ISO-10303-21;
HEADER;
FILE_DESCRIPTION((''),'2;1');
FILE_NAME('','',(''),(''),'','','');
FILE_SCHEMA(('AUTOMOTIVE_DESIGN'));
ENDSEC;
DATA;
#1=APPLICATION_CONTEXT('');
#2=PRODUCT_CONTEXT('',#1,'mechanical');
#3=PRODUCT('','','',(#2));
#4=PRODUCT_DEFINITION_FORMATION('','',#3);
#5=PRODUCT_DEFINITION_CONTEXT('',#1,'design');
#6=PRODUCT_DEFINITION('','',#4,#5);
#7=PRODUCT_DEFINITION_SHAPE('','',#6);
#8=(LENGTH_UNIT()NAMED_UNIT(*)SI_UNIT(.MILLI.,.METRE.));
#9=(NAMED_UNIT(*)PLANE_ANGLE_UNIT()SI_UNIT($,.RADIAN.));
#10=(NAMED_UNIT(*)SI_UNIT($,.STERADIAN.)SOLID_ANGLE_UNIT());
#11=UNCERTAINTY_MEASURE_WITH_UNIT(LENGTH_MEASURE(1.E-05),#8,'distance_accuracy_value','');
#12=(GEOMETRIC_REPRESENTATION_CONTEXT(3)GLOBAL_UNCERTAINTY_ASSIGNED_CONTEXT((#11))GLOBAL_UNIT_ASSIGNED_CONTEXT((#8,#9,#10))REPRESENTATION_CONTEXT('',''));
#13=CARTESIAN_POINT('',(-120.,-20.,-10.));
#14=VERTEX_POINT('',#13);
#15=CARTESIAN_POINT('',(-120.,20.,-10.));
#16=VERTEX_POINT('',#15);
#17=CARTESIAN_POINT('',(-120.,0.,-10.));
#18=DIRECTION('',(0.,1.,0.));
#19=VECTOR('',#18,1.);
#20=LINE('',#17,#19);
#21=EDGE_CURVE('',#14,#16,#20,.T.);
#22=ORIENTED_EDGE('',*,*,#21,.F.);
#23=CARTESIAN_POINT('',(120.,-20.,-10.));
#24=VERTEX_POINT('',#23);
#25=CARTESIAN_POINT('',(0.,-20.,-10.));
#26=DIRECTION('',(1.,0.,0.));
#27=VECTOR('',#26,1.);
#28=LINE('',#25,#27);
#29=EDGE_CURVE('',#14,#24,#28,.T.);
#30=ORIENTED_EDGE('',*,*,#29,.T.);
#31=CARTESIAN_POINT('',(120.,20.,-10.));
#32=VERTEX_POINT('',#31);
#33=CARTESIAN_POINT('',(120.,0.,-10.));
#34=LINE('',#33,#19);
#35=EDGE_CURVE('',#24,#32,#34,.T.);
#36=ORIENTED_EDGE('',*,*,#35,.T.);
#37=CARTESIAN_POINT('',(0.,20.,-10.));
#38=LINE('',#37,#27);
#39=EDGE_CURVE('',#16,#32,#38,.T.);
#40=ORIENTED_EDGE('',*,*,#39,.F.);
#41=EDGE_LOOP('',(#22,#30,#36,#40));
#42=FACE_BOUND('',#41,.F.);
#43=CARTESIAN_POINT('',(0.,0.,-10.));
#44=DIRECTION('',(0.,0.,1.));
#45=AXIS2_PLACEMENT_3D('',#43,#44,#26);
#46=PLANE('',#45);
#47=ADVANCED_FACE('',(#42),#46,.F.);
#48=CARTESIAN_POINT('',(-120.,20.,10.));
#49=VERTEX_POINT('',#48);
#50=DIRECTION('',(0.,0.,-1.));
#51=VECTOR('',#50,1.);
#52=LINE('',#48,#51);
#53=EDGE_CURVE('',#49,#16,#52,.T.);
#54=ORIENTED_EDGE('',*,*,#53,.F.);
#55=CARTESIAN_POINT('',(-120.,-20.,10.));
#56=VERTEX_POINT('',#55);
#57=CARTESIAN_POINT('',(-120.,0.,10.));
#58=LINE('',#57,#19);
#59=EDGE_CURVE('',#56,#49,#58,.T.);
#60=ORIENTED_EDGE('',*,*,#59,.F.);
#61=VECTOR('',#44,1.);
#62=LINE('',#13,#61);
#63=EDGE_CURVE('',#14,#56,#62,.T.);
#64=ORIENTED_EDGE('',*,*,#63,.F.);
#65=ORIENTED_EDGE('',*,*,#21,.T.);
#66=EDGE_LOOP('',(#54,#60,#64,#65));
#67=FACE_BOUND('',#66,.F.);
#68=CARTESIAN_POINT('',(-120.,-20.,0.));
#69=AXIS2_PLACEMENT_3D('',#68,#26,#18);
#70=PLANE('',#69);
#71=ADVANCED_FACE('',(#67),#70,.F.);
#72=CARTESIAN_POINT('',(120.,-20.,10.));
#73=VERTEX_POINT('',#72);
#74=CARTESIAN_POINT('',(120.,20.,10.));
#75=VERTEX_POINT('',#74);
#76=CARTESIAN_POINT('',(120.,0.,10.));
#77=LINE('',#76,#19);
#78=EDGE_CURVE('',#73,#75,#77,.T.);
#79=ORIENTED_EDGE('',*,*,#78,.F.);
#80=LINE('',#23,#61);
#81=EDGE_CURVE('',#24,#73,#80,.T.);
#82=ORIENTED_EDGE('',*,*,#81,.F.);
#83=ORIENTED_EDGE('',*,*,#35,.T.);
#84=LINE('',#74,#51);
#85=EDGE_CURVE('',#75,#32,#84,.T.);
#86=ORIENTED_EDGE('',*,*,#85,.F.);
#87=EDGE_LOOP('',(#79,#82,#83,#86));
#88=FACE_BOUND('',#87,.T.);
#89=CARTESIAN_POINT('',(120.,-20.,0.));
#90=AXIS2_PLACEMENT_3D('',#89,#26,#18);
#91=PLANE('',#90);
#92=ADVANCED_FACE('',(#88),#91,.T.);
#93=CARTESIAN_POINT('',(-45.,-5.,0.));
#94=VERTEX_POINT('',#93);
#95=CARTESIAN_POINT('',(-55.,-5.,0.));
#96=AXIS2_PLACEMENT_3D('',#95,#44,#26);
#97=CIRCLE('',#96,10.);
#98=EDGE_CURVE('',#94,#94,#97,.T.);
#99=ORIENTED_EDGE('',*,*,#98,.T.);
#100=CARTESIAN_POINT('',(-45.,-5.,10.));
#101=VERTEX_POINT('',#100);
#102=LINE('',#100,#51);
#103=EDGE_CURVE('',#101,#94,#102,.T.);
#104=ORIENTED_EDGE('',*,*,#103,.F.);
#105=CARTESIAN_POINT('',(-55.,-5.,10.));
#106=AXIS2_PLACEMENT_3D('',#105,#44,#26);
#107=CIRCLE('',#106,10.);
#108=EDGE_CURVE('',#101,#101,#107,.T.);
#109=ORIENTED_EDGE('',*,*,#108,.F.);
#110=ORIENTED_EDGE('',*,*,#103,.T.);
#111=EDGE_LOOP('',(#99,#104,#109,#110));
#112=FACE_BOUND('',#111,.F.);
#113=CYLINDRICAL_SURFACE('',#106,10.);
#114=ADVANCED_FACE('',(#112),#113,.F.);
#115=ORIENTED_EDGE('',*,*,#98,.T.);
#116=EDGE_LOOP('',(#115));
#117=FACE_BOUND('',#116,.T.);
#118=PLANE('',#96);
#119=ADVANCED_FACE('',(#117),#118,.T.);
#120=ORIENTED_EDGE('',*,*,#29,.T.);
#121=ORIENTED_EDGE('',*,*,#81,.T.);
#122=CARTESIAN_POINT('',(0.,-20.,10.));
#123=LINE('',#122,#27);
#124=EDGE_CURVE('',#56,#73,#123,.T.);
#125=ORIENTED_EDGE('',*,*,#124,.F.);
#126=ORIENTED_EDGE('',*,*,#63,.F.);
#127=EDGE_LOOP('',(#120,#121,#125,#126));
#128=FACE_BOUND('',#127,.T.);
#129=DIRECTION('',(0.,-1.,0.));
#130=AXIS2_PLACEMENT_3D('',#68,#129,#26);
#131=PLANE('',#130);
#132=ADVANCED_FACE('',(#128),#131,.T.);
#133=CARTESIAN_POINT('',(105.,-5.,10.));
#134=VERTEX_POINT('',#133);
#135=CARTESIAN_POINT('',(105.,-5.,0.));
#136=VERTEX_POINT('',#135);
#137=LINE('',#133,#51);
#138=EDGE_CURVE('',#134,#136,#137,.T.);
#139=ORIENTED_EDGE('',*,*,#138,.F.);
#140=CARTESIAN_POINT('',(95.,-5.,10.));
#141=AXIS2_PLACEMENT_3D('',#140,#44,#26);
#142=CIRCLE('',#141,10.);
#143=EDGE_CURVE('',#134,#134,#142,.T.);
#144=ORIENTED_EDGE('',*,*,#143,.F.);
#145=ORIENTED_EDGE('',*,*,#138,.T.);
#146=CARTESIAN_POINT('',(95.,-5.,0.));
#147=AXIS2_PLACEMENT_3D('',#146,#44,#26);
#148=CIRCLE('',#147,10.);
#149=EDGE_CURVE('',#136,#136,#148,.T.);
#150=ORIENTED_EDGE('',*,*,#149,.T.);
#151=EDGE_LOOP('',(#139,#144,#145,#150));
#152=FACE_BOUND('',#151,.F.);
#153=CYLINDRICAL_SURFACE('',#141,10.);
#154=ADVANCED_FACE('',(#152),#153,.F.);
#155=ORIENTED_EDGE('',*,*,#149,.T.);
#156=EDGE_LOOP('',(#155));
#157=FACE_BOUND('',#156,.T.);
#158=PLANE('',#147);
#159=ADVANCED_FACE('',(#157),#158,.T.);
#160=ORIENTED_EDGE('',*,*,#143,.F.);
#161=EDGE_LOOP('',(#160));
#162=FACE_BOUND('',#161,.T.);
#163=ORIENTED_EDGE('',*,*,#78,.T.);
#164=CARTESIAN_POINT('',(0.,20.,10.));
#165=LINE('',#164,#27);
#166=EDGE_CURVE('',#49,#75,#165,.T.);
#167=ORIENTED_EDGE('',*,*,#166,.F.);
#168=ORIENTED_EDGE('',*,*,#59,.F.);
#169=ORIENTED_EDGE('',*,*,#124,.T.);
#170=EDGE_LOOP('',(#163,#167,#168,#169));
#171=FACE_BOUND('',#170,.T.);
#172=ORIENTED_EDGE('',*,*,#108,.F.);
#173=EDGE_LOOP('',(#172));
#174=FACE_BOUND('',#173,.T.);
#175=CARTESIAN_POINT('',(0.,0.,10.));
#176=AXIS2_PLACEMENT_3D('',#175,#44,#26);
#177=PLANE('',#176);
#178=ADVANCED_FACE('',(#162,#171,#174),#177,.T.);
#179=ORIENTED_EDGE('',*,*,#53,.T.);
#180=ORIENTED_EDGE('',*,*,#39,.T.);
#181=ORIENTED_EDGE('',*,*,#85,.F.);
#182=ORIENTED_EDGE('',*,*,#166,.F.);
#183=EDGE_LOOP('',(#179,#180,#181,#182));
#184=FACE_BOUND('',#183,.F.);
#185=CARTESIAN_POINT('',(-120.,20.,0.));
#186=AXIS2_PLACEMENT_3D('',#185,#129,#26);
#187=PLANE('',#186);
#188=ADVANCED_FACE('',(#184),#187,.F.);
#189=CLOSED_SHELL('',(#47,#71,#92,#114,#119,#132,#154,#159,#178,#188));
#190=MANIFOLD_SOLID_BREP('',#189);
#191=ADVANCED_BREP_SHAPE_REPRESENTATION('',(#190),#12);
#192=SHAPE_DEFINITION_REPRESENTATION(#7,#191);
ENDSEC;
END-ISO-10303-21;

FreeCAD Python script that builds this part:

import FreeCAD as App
import Part
import Sketcher

V = App.Vector
Q = App.Units.Quantity

doc = App.newDocument("Part")
body = doc.addObject("PartDesign::Body", "Body")

sketch1 = doc.addObject("Sketcher::SketchObject", "Sketch")
body.addObject(sketch1)
sketch1.AttachmentSupport = (doc.XY_Plane, [""])
sketch1.MapMode = "FlatFace"
sketch1.addGeometry(Part.LineSegment(V(-120, 20, 0), V(-120, -20, 0)), False)
sketch1.addGeometry(Part.LineSegment(V(-120, -20, 0), V(120, -20, 0)), False)
sketch1.addGeometry(Part.LineSegment(V(120, -20, 0), V(120, 20, 0)), False)
sketch1.addGeometry(Part.LineSegment(V(120, 20, 0), V(-120, 20, 0)), False)
sketch1.addConstraint(Sketcher.Constraint("Coincident", 0, 2, 1, 1))
sketch1.addConstraint(Sketcher.Constraint("Coincident", 1, 2, 2, 1))
sketch1.addConstraint(Sketcher.Constraint("Coincident", 2, 2, 3, 1))
sketch1.addConstraint(Sketcher.Constraint("Coincident", 3, 2, 0, 1))
sketch1.addConstraint(Sketcher.Constraint("Vertical", 0))
sketch1.addConstraint(Sketcher.Constraint("Horizontal", 1))
sketch1.addConstraint(Sketcher.Constraint("Vertical", 2))
sketch1.addConstraint(Sketcher.Constraint("Horizontal", 3))
sketch1.addConstraint(Sketcher.Constraint("Symmetric", 0, 2, 2, 2, -1, 1))
sketch1.addConstraint(Sketcher.Constraint("DistanceX", 1, 1, 1, 2, Q("240 mm")))
sketch1.addConstraint(Sketcher.Constraint("DistanceY", 0, 2, 0, 1, Q("40 mm")))
pad1 = doc.addObject("PartDesign::Pad", "Pad")
body.addObject(pad1)
pad1.Profile = sketch1
pad1.Length = 20
pad1.Midplane = True

sketch2 = doc.addObject("Sketcher::SketchObject", "Sketch001")
body.addObject(sketch2)
sketch2.AttachmentSupport = (doc.XY_Plane, [""])
sketch2.MapMode = "FlatFace"
sketch2.AttachmentOffset = App.Placement(V(0, 0, 10), App.Rotation())
sketch2.addGeometry(Part.Circle(V(-55, -5, 0), V(0, 0, 1), 10), False)
sketch2.addGeometry(Part.Circle(V(95, -5, 0), V(0, 0, 1), 10), False)
sketch2.addConstraint(Sketcher.Constraint("Equal", 0, 1))
sketch2.addConstraint(Sketcher.Constraint("Horizontal", 0, 3, 1, 3))
sketch2.addConstraint(Sketcher.Constraint("Diameter", 0, Q("20 mm")))
sketch2.addConstraint(Sketcher.Constraint("DistanceX", 0, 3, -1, 1, Q("55 mm")))
sketch2.addConstraint(Sketcher.Constraint("DistanceY", 0, 3, -1, 1, Q("5 mm")))
sketch2.addConstraint(Sketcher.Constraint("DistanceX", -1, 1, 1, 3, Q("95 mm")))
pocket1 = doc.addObject("PartDesign::Pocket", "Pocket")
body.addObject(pocket1)
pocket1.Profile = sketch2
pocket1.Length = 10

doc.recompute()
